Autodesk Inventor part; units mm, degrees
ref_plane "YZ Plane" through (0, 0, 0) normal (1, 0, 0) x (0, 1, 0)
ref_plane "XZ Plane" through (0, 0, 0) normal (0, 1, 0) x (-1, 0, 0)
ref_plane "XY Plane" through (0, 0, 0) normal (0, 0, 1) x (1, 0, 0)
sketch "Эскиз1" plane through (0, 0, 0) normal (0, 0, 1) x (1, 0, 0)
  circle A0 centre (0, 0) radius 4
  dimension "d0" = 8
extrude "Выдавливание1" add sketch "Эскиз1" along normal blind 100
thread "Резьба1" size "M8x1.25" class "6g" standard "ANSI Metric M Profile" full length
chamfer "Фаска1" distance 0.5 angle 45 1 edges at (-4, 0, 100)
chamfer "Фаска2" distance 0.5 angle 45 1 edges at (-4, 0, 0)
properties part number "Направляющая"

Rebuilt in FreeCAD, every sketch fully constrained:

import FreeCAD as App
import Part
import Sketcher
Q = App.Units.Quantity


def edges_at(feature, points):
    """Names of the edges that pass closest to the given points."""
    edges = feature.Shape.Edges
    near = lambda p: min(range(len(edges)), key=lambda i: edges[i].distToShape(Part.Vertex(*p))[0])
    return sorted({f"Edge{near(p) + 1}" for p in points})

doc = App.newDocument("Part")
params = doc.addObject("Spreadsheet::Sheet", "Params")
for row, (alias, value) in enumerate([
    ("sketch1_diameter", "8 mm"),
    ("pad1_length", "100 mm"),
    ("chamfer_size", "0.5 mm"),
    ("chamfer2_size", "0.5 mm"),
], start=1):
    params.set(f"A{row}", alias)
    params.set(f"B{row}", "=" + value)
    params.setAlias(f"B{row}", alias)

body = doc.addObject("PartDesign::Body", "Body")

# Sketch on XY plane
sketch1 = body.newObject("Sketcher::SketchObject", "Sketch")
sketch1.AttachmentSupport = (doc.getObject("XY_Plane"), [""])
sketch1.MapMode = "FlatFace"
sketch1.addGeometry(Part.Circle(App.Vector(0, 0, 0), App.Vector(0, 0, 1), 4), False)
sketch1.addConstraint(Sketcher.Constraint("Coincident", 0, 3, -1, 1))
sketch1.addConstraint(Sketcher.Constraint("Diameter", 0, Q("8 mm")))
sketch1.setExpression("Constraints[1]", "Params.sketch1_diameter")
pad1 = body.newObject("PartDesign::Pad", "Pad")
pad1.Profile = sketch1
pad1.setExpression("Length", "Params.pad1_length")
doc.recompute()

chamfer = body.newObject("PartDesign::Chamfer", "Chamfer")
chamfer.Base = (pad1, edges_at(pad1, [(-4, 0, 100)]))
chamfer.setExpression("Size", "Params.chamfer_size")
doc.recompute()

chamfer2 = body.newObject("PartDesign::Chamfer", "Chamfer001")
chamfer2.Base = (chamfer, edges_at(chamfer, [(-4, 0, 0)]))
chamfer2.setExpression("Size", "Params.chamfer2_size")

doc.recompute()
